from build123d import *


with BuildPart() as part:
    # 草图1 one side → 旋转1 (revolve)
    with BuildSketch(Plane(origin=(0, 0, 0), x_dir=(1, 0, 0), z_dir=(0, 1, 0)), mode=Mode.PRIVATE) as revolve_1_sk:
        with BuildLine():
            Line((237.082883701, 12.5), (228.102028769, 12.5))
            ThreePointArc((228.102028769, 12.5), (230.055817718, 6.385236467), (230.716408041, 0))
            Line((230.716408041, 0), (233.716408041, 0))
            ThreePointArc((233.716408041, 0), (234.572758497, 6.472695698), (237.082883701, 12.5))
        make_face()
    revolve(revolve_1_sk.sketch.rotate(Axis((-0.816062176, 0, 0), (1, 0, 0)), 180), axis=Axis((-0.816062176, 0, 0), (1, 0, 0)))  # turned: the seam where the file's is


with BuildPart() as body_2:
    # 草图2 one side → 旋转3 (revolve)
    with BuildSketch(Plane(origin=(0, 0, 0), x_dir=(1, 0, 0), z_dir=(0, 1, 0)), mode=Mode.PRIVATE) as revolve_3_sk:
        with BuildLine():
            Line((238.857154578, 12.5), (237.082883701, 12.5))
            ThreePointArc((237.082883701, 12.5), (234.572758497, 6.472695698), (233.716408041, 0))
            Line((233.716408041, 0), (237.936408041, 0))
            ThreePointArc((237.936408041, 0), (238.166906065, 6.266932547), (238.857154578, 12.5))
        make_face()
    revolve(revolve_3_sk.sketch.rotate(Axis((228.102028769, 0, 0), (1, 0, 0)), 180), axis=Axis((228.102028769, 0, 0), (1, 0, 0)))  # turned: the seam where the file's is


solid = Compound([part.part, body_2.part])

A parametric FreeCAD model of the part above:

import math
import FreeCAD as App
import Part
import Sketcher
Q = App.Units.Quantity

doc = App.newDocument("Part")
body = doc.addObject("PartDesign::Body", "Body")

sketch1 = body.newObject("Sketcher::SketchObject", "Sketch")
sketch1.AttachmentSupport = (doc.getObject("XZ_Plane"), [""])
sketch1.MapMode = "FlatFace"
sketch1.addGeometry(Part.LineSegment(App.Vector(237.1, -12.5, 0), App.Vector(228.1, -12.5, 0)), False)
sketch1.addGeometry(Part.ArcOfCircle(Part.Circle(App.Vector(199.5, 0, 0), App.Vector(0, 0, 1), 31.2), math.radians(-24), math.radians(0)), False)
sketch1.addGeometry(Part.LineSegment(App.Vector(230.7, 0, 0), App.Vector(233.7, 0, 0)), False)
sketch1.addGeometry(Part.ArcOfCircle(Part.Circle(App.Vector(258.6, 0, 0), App.Vector(0, 0, 1), 24.9), math.radians(180), math.radians(210)), False)
sketch1.addConstraint(Sketcher.Constraint("Coincident", 0, 2, 1, 1))
sketch1.addConstraint(Sketcher.Constraint("Coincident", 1, 2, 2, 1))
sketch1.addConstraint(Sketcher.Constraint("Coincident", 2, 2, 3, 1))
sketch1.addConstraint(Sketcher.Constraint("Coincident", 3, 2, 0, 1))
sketch1.addConstraint(Sketcher.Constraint("Horizontal", 0))
sketch1.addConstraint(Sketcher.Constraint("Horizontal", 2))
sketch1.addConstraint(Sketcher.Constraint("PointOnObject", 1, 3, -1))
sketch1.addConstraint(Sketcher.Constraint("PointOnObject", 3, 3, -1))
sketch1.addConstraint(Sketcher.Constraint("PointOnObject", 1, 2, -1))
sketch1.addConstraint(Sketcher.Constraint("DistanceX", 2, 1, 2, 2, Q("3 mm")))
sketch1.addConstraint(Sketcher.Constraint("Radius", 1, Q("31.19 mm")))
sketch1.addConstraint(Sketcher.Constraint("Radius", 3, Q("24.89 mm")))
sketch1.addConstraint(Sketcher.Constraint("DistanceY", 0, 2, -1, 1, Q("12.5 mm")))
sketch1.addConstraint(Sketcher.Constraint("DistanceX", -1, 1, 1, 3, Q("199.526408 mm")))
revolution = body.newObject("PartDesign::Revolution", "Revolution")
revolution.Profile = sketch1
revolution.ReferenceAxis = (sketch1, ["H_Axis"])
revolution.Angle = 360
body2 = doc.addObject("PartDesign::Body", "Body001")

sketch2 = body2.newObject("Sketcher::SketchObject", "Sketch001")
sketch2.AttachmentSupport = (doc.getObject("XZ_Plane001"), [""])
sketch2.MapMode = "FlatFace"
sketch2.addGeometry(Part.LineSegment(App.Vector(238.9, -12.5, 0), App.Vector(237.1, -12.5, 0)), False)
sketch2.addGeometry(Part.ArcOfCircle(Part.Circle(App.Vector(258.6, 0, 0), App.Vector(0, 0, 1), 24.9), math.radians(180), math.radians(210)), False)
sketch2.addGeometry(Part.LineSegment(App.Vector(233.7, 0, 0), App.Vector(237.9, 0, 0)), False)
sketch2.addGeometry(Part.ArcOfCircle(Part.Circle(App.Vector(323.2, 0, 0), App.Vector(0, 0, 1), 85.3), math.radians(180), math.radians(188.43)), False)
sketch2.addConstraint(Sketcher.Constraint("Coincident", 0, 2, 1, 2))
sketch2.addConstraint(Sketcher.Constraint("Coincident", 1, 1, 2, 1))
sketch2.addConstraint(Sketcher.Constraint("Coincident", 2, 2, 3, 1))
sketch2.addConstraint(Sketcher.Constraint("Coincident", 3, 2, 0, 1))
sketch2.addConstraint(Sketcher.Constraint("Horizontal", 0))
sketch2.addConstraint(Sketcher.Constraint("Horizontal", 2))
sketch2.addConstraint(Sketcher.Constraint("PointOnObject", 1, 3, -1))
sketch2.addConstraint(Sketcher.Constraint("PointOnObject", 3, 3, -1))
sketch2.addConstraint(Sketcher.Constraint("PointOnObject", 1, 1, -1))
sketch2.addConstraint(Sketcher.Constraint("Radius", 1, Q("24.89 mm")))
sketch2.addConstraint(Sketcher.Constraint("Radius", 3, Q("85.31 mm")))
sketch2.addConstraint(Sketcher.Constraint("DistanceX", 2, 1, 2, 2, Q("4.22 mm")))
sketch2.addConstraint(Sketcher.Constraint("DistanceY", 0, 2, -1, 1, Q("12.5 mm")))
sketch2.addConstraint(Sketcher.Constraint("DistanceX", -1, 1, 1, 3, Q("258.606408 mm")))
revolution2 = body2.newObject("PartDesign::Revolution", "Revolution001")
revolution2.Profile = sketch2
revolution2.ReferenceAxis = (sketch2, ["H_Axis"])
revolution2.Angle = 360

doc.recompute()
